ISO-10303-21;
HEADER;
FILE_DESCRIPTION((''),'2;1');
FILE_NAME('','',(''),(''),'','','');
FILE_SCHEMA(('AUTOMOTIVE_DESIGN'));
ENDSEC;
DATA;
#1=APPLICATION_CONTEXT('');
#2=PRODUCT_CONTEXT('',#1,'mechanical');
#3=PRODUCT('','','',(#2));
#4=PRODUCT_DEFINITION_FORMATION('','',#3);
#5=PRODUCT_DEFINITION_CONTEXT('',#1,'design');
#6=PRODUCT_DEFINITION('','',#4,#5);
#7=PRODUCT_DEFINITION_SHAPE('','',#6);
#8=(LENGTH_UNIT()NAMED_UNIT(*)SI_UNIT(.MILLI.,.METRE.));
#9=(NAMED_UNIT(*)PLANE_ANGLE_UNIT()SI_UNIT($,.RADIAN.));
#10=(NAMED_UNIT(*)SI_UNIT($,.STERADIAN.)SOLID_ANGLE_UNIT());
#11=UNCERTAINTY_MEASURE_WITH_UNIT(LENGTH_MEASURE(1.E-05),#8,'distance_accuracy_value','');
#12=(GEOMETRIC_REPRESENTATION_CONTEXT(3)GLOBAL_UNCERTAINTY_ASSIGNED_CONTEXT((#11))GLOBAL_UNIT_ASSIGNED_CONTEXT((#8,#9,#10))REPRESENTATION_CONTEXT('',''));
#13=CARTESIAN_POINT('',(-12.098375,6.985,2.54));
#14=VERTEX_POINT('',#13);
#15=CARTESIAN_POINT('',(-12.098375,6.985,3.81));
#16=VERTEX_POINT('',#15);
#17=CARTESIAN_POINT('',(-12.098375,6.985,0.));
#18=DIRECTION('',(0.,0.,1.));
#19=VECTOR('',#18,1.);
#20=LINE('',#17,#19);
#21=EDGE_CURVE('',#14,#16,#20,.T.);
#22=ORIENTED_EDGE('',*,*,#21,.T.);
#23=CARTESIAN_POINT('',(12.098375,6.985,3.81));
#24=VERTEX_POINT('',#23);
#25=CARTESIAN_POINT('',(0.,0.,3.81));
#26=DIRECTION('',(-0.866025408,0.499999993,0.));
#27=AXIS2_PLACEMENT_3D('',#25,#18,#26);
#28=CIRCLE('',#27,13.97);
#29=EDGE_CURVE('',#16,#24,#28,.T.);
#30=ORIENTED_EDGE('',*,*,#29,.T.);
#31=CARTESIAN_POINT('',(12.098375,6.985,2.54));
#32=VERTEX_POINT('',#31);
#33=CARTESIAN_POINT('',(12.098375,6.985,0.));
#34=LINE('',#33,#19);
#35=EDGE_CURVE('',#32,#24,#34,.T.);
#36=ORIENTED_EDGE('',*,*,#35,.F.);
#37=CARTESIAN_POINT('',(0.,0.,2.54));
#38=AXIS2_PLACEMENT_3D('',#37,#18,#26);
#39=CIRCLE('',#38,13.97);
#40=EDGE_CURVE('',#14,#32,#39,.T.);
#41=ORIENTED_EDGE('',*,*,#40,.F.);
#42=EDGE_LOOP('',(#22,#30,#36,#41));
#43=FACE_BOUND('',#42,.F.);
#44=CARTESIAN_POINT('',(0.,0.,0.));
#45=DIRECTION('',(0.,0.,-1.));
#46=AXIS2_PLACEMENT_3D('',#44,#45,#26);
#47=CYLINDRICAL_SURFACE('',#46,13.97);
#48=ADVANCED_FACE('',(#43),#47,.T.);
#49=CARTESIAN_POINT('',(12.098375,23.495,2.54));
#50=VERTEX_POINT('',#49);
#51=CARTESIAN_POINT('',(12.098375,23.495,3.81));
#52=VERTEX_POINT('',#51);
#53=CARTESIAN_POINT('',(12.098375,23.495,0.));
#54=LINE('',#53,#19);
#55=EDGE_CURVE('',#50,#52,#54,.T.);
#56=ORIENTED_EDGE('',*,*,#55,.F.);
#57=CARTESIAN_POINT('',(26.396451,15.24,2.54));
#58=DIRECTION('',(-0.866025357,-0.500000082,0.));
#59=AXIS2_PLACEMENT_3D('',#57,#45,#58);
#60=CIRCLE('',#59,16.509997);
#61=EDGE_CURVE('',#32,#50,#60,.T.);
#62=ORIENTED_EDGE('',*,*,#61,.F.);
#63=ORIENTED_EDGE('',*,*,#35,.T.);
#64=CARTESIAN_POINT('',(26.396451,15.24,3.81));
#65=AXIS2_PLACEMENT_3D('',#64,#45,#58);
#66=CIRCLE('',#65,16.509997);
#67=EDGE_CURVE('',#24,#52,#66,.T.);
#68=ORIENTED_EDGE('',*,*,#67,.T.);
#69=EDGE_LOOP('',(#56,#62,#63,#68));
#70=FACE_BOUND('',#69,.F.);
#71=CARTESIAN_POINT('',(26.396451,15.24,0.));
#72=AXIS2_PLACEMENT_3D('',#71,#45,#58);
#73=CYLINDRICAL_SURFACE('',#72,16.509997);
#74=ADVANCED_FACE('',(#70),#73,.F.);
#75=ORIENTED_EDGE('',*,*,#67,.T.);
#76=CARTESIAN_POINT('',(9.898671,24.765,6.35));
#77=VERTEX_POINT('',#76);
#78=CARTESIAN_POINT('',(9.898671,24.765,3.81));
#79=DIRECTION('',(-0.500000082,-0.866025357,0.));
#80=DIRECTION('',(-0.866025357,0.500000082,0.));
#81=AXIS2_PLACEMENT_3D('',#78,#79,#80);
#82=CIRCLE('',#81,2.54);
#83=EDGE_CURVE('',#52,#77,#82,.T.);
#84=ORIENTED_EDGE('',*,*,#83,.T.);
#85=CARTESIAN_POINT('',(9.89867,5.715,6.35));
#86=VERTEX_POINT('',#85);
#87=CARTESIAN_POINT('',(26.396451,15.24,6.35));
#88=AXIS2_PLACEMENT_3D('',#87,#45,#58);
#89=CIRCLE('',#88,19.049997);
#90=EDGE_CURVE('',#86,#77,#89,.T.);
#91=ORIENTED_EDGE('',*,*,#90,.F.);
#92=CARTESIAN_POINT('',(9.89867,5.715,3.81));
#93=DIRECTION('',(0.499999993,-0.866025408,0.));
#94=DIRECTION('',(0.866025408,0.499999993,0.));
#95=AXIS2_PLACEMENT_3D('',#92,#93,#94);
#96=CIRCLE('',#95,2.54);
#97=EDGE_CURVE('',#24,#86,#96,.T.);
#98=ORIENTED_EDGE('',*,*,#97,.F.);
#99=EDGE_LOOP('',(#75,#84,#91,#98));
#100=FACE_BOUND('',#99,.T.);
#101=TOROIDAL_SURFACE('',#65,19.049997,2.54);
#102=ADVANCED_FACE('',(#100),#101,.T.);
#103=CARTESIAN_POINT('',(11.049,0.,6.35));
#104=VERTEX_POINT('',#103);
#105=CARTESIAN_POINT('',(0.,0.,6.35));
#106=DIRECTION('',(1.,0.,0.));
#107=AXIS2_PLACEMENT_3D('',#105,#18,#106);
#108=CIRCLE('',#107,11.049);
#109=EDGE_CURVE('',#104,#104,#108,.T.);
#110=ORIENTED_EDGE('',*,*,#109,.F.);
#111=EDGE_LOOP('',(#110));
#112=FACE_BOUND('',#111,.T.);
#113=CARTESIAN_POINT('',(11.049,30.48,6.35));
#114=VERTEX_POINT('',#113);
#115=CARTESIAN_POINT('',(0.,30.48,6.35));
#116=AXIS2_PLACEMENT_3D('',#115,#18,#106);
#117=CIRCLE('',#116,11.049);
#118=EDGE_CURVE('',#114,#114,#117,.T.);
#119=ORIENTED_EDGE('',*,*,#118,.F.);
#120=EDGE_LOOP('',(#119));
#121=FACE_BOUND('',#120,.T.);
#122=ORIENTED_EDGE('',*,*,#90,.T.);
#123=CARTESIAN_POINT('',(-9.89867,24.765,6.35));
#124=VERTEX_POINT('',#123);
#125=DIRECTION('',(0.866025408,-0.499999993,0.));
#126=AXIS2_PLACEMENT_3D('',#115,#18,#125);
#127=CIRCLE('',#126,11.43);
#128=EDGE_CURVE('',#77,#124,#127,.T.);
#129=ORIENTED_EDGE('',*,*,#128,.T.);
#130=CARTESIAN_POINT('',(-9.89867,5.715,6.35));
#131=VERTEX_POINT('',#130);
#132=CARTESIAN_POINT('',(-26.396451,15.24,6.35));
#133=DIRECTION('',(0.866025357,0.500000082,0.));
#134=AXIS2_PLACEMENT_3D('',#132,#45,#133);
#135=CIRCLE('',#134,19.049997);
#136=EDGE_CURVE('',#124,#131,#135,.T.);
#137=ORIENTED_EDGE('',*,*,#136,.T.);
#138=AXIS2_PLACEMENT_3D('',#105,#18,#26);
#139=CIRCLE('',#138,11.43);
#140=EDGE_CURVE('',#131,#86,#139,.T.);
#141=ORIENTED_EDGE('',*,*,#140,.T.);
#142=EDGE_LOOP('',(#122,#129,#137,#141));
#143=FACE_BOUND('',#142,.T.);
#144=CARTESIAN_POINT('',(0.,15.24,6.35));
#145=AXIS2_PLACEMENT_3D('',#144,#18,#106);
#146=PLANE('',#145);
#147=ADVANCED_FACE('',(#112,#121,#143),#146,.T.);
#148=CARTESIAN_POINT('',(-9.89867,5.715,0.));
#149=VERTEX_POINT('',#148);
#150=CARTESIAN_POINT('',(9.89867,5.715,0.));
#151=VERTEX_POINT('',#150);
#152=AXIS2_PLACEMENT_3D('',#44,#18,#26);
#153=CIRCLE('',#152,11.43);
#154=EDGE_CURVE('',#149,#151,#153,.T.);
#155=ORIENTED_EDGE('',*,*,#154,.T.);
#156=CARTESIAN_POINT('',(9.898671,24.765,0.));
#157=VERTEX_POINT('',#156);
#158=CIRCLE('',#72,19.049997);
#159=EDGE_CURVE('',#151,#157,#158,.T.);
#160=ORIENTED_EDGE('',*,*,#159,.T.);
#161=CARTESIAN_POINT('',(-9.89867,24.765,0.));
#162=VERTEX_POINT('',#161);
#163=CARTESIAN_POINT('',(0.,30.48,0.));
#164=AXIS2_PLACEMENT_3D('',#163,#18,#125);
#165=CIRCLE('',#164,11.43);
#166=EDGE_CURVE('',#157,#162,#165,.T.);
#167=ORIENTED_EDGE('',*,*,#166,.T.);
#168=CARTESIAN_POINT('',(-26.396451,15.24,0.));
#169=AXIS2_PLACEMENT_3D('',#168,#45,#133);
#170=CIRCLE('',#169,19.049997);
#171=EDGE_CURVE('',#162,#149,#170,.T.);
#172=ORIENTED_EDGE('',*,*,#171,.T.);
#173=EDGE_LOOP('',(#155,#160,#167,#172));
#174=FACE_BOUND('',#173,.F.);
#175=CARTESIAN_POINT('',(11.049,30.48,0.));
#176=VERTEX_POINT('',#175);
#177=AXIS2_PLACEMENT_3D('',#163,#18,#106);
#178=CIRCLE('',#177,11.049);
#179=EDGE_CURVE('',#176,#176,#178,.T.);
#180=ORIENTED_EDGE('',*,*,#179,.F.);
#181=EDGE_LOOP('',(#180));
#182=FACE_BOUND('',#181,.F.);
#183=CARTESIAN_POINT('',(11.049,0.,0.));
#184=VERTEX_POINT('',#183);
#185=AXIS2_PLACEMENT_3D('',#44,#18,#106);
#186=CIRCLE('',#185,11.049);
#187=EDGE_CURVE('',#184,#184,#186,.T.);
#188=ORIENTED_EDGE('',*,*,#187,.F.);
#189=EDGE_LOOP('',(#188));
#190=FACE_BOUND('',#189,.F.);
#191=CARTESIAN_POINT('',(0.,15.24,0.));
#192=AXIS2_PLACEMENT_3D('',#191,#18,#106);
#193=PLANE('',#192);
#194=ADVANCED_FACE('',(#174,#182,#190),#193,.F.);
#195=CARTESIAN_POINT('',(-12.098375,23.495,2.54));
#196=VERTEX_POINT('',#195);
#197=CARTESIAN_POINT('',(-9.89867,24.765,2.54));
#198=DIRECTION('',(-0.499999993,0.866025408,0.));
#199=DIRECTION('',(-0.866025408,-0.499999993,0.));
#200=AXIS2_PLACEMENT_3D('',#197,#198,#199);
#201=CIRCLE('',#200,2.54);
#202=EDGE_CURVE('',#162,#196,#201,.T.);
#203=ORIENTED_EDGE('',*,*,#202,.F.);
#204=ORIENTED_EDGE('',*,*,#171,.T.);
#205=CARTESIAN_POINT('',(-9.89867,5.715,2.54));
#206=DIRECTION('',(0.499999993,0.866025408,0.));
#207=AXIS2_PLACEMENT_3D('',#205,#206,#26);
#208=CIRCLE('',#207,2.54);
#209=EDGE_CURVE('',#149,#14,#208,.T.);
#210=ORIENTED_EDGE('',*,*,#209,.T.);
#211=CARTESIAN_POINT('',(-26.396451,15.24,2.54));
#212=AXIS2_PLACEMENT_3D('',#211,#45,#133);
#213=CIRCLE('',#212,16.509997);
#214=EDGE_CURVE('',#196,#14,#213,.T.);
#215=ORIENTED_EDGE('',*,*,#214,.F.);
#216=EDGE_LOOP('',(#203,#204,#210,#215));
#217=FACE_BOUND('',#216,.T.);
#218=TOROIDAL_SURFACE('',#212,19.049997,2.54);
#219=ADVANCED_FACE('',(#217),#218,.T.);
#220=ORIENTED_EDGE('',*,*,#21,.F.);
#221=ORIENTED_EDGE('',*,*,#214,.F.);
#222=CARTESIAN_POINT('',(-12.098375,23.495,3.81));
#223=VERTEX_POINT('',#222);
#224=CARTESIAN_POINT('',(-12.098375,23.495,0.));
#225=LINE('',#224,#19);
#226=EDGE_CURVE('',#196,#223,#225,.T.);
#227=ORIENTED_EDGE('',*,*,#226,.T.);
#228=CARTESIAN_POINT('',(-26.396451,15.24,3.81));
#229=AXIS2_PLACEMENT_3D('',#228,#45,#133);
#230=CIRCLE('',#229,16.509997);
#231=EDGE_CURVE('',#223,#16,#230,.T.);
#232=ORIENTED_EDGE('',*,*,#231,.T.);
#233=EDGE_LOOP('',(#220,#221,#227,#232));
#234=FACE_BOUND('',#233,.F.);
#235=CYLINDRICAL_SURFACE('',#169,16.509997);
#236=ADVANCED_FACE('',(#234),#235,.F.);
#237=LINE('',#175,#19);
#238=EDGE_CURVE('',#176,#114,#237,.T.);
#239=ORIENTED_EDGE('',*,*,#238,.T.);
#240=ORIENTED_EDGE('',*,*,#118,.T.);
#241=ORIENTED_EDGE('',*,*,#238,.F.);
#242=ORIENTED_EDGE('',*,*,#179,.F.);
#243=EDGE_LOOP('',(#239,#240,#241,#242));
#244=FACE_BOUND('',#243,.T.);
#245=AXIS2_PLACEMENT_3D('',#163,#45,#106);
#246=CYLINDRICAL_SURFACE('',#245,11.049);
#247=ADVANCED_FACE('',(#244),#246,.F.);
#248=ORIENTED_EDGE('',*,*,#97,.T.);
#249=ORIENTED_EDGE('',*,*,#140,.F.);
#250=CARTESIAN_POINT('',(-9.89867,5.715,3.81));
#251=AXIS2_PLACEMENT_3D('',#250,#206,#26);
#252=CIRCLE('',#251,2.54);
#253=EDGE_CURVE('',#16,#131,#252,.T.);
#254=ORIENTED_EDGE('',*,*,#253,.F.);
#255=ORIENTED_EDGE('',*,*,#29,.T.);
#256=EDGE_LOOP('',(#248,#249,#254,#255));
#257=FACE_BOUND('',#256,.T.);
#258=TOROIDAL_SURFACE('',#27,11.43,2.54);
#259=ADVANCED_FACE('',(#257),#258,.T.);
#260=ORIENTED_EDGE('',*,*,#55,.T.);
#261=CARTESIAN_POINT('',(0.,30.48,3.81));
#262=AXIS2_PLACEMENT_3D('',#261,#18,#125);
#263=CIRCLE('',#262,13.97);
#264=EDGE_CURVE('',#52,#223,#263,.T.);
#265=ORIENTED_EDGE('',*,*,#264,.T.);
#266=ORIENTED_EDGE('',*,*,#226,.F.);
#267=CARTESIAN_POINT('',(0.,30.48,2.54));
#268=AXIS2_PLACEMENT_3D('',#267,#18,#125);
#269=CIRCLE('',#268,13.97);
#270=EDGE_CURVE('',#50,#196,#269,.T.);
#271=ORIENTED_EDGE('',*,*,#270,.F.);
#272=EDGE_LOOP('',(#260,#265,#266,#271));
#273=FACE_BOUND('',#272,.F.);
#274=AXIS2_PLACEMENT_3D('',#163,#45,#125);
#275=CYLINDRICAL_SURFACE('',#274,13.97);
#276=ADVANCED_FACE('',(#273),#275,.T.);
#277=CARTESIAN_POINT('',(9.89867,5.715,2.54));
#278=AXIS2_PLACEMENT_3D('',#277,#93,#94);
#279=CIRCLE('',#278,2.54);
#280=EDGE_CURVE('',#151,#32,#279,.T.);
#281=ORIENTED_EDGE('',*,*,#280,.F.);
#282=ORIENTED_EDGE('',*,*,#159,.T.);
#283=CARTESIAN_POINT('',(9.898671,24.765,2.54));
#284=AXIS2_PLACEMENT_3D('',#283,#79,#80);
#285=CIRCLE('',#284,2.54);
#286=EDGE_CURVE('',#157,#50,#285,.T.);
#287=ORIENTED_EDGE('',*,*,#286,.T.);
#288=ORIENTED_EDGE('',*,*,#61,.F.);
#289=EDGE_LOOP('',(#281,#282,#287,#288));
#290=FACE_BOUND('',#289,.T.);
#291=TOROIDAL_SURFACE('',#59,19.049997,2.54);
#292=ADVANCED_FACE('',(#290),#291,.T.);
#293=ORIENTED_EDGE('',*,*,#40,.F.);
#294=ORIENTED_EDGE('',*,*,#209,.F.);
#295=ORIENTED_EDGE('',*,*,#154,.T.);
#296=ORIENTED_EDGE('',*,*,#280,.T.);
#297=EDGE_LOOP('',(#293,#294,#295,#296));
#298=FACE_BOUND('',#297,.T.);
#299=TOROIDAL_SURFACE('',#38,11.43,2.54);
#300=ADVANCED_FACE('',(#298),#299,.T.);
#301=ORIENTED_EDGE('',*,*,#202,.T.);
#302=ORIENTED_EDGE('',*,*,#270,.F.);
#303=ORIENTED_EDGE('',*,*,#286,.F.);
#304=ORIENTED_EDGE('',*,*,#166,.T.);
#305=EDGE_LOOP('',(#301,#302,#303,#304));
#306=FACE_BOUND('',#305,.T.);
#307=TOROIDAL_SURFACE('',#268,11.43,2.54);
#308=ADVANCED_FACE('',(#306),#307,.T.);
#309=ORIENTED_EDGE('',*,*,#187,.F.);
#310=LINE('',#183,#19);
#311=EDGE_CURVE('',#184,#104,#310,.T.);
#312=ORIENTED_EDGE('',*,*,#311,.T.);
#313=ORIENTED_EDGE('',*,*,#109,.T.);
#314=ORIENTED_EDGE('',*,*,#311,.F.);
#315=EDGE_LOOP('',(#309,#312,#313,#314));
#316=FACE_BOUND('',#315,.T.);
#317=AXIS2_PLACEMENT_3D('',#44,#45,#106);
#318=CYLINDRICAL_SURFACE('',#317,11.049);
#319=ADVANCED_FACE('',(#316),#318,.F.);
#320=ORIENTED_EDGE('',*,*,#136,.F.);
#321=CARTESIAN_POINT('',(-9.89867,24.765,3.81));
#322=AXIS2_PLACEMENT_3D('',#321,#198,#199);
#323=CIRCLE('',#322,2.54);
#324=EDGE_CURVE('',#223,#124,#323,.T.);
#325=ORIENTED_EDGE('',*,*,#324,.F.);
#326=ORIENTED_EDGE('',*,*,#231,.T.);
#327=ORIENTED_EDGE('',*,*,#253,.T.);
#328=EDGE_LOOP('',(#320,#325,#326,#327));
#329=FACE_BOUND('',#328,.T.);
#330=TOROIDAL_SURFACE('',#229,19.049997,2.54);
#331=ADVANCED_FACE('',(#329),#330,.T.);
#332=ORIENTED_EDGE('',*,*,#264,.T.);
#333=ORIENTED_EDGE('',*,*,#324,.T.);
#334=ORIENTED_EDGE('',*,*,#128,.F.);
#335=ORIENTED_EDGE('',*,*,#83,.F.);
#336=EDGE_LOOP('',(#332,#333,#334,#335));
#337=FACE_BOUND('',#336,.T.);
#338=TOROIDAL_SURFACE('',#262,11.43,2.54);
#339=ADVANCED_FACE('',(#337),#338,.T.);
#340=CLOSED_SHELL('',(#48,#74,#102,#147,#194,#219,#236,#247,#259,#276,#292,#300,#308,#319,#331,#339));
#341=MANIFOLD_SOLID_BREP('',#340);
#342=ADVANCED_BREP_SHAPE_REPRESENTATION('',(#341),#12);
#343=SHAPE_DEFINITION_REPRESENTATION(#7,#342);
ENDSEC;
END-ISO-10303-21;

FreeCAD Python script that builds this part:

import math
import FreeCAD as App
import Part
import Sketcher
Q = App.Units.Quantity


def edges_at(feature, points):
    """Names of the edges that pass closest to the given points."""
    edges = feature.Shape.Edges
    near = lambda p: min(range(len(edges)), key=lambda i: edges[i].distToShape(Part.Vertex(*p))[0])
    return sorted({f"Edge{near(p) + 1}" for p in points})

doc = App.newDocument("Part")
body = doc.addObject("PartDesign::Body", "Body")

# Sketch on XY plane
sketch1 = doc.addObject("Sketcher::SketchObject", "Sketch")
body.addObject(sketch1)
sketch1.AttachmentSupport = (doc.XY_Plane, [""])
sketch1.MapMode = "FlatFace"
sketch1.addGeometry([
    Part.ArcOfCircle(Part.Circle(App.Vector(-26.396451, 15.24, 0), App.Vector(0, 0, 1), 16.509997), math.radians(-30.000005), math.radians(30.000005)),  # 0
    Part.ArcOfCircle(Part.Circle(App.Vector(0, 0, 0), App.Vector(0, 0, 1), 13.97), math.radians(150), math.radians(390)),  # 1
    Part.ArcOfCircle(Part.Circle(App.Vector(26.396451, 15.24, 0), App.Vector(0, 0, 1), 16.509997), math.radians(149.999995), math.radians(210.000005)),  # 2
    Part.ArcOfCircle(Part.Circle(App.Vector(0, 30.48, 0), App.Vector(0, 0, 1), 13.97), math.radians(-30), math.radians(210)),  # 3
    Part.Circle(App.Vector(0, 0, 0), App.Vector(0, 0, 1), 11.049),  # 4
    Part.Circle(App.Vector(0, 30.48, 0), App.Vector(0, 0, 1), 11.049),  # 5
], False)
sketch1.addConstraint([
    Sketcher.Constraint("Tangent", 0, 1, 1, 1),
    Sketcher.Constraint("Tangent", 1, 2, 2, 2),
    Sketcher.Constraint("Tangent", 2, 1, 3, 1),
    Sketcher.Constraint("Tangent", 3, 2, 0, 2),
    Sketcher.Constraint("Coincident", 1, 3, -1, 1),
    Sketcher.Constraint("Coincident", 4, 3, -1, 1),
    Sketcher.Constraint("Coincident", 5, 3, 3, 3),
    Sketcher.Constraint("Equal", 0, 2),
    Sketcher.Constraint("Equal", 1, 3),
    Sketcher.Constraint("Equal", 4, 5),
    Sketcher.Constraint("PointOnObject", 3, 3, -2),
    Sketcher.Constraint("Diameter", 4, Q("0.87 in")),
    Sketcher.Constraint("Radius", 0, Q("0.6499999 in")),
    Sketcher.Constraint("Radius", 1, Q("0.55 in")),
    Sketcher.Constraint("DistanceY", -1, 1, 0, 3, Q("0.6 in")),
])
pad1 = doc.addObject("PartDesign::Pad", "Pad")
body.addObject(pad1)
pad1.Profile = sketch1
pad1.Length = Q("0.25 in")
doc.recompute()

fillet = doc.addObject("PartDesign::Fillet", "Fillet")
body.addObject(fillet)
fillet.Base = (pad1, edges_at(pad1, [(0, -13.97, 6.35)]))
fillet.Radius = Q("0.1 in")
doc.recompute()

fillet2 = doc.addObject("PartDesign::Fillet", "Fillet001")
body.addObject(fillet2)
fillet2.Base = (fillet, edges_at(fillet, [(0, -13.97, 0)]))
fillet2.Radius = Q("0.1 in")

doc.recompute()
